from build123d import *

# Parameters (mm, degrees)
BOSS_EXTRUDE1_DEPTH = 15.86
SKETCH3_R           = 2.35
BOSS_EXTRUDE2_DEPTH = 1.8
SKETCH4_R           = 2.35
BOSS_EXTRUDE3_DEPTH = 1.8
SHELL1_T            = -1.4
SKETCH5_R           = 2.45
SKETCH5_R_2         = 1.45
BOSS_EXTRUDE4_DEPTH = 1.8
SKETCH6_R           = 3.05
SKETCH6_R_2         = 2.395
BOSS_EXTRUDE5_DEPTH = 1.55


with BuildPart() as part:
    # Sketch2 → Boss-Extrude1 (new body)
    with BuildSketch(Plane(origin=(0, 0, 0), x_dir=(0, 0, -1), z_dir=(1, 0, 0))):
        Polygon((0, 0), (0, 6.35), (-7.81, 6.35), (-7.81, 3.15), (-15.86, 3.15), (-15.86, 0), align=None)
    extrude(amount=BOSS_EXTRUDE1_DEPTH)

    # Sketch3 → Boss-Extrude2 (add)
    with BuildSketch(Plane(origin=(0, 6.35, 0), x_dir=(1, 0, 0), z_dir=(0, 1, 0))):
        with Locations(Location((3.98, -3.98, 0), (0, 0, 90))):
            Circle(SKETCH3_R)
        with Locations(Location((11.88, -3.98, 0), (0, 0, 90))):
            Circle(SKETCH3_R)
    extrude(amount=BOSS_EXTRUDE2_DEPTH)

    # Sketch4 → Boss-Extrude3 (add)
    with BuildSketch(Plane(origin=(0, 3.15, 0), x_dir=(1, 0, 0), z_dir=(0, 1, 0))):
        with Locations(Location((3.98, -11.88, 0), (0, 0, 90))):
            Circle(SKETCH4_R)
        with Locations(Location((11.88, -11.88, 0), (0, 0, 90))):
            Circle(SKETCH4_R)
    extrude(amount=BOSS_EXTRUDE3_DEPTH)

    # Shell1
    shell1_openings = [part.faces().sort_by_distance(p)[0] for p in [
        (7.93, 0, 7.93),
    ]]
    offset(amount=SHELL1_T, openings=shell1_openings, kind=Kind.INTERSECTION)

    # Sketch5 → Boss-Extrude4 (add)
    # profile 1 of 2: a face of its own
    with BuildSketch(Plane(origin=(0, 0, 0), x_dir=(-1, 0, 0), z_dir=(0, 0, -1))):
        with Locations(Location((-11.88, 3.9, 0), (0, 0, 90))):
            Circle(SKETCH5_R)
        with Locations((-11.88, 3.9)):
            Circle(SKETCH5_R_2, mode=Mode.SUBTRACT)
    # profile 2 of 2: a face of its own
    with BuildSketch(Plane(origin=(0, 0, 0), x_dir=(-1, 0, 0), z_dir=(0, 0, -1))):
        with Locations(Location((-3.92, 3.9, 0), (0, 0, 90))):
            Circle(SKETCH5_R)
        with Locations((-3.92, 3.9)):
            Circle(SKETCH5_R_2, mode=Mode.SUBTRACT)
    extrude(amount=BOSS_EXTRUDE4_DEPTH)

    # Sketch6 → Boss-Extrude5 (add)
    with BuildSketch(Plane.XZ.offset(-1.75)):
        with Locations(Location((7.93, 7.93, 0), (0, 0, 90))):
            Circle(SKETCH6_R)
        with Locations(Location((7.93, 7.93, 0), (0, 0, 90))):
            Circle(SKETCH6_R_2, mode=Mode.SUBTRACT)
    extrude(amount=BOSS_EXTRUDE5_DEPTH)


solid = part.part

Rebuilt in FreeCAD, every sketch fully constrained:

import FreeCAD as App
import Part
import Sketcher
Q = App.Units.Quantity


def faces_at(feature, points):
    """Names of the faces that lie closest to the given points."""
    faces = feature.Shape.Faces
    near = lambda p: min(range(len(faces)), key=lambda i: faces[i].distToShape(Part.Vertex(*p))[0])
    return sorted({f"Face{near(p) + 1}" for p in points})


def add_polygon(sketch, points):
    """Adds a closed chain of lines whose ends are joined by coincident constraints."""
    first, n = sketch.GeometryCount, len(points)
    for a, b in zip(points, points[1:] + points[:1]):
        sketch.addGeometry(Part.LineSegment(App.Vector(*a, 0), App.Vector(*b, 0)), False)
    for i in range(n):
        sketch.addConstraint(Sketcher.Constraint("Coincident", first + i, 2, first + (i + 1) % n, 1))

doc = App.newDocument("Part")
body = doc.addObject("PartDesign::Body", "Body")

sketch1 = doc.addObject("Sketcher::SketchObject", "Sketch")
body.addObject(sketch1)
sketch1.AttachmentSupport = (doc.YZ_Plane, [""])
sketch1.MapMode = "FlatFace"
add_polygon(sketch1, [(0, 0), (6.35, 0), (6.35, 7.81), (3.15, 7.81), (3.15, 15.86), (0, 15.86)])
sketch1.addConstraint([
    Sketcher.Constraint("Horizontal", 0),
    Sketcher.Constraint("Vertical", 1),
    Sketcher.Constraint("Horizontal", 2),
    Sketcher.Constraint("Vertical", 3),
    Sketcher.Constraint("Horizontal", 4),
    Sketcher.Constraint("Vertical", 5),
    Sketcher.Constraint("Coincident", 5, 2, -1, 1),
    Sketcher.Constraint("DistanceX", 2, 2, 2, 1, Q("3.2 mm")),
    Sketcher.Constraint("DistanceX", 0, 1, 0, 2, Q("6.35 mm")),
    Sketcher.Constraint("DistanceY", 1, 1, 1, 2, Q("7.81 mm")),
    Sketcher.Constraint("DistanceY", 3, 1, 3, 2, Q("8.05 mm")),
])
pad1 = doc.addObject("PartDesign::Pad", "Pad")
body.addObject(pad1)
pad1.Profile = sketch1
pad1.Length = 15.86

sketch2 = doc.addObject("Sketcher::SketchObject", "Sketch001")
body.addObject(sketch2)
sketch2.AttachmentSupport = (doc.XZ_Plane, [""])
sketch2.MapMode = "FlatFace"
sketch2.AttachmentOffset = App.Placement(App.Vector(0, 0, -6.35), App.Rotation())
sketch2.addGeometry([
    Part.Circle(App.Vector(3.98, 3.98, 0), App.Vector(0, 0, 1), 2.35),
    Part.Circle(App.Vector(11.88, 3.98, 0), App.Vector(0, 0, 1), 2.35),
], False)
sketch2.addConstraint([
    Sketcher.Constraint("Equal", 0, 1),
    Sketcher.Constraint("Horizontal", 0, 3, 1, 3),
    Sketcher.Constraint("Diameter", 0, Q("4.7 mm")),
    Sketcher.Constraint("DistanceX", 0, 3, 1, 3, Q("7.9 mm")),
    Sketcher.Constraint("DistanceX", -1, 1, 0, 3, Q("3.98 mm")),
    Sketcher.Constraint("DistanceY", -1, 1, 0, 3, Q("3.98 mm")),
])
pad2 = doc.addObject("PartDesign::Pad", "Pad001")
body.addObject(pad2)
pad2.Profile = sketch2
pad2.Length = 1.8
pad2.Reversed = True

sketch3 = doc.addObject("Sketcher::SketchObject", "Sketch002")
body.addObject(sketch3)
sketch3.AttachmentSupport = (doc.XZ_Plane, [""])
sketch3.MapMode = "FlatFace"
sketch3.AttachmentOffset = App.Placement(App.Vector(0, 0, -3.15), App.Rotation())
sketch3.addGeometry([
    Part.Circle(App.Vector(3.98, 11.88, 0), App.Vector(0, 0, 1), 2.35),
    Part.Circle(App.Vector(11.88, 11.88, 0), App.Vector(0, 0, 1), 2.35),
], False)
sketch3.addConstraint([
    Sketcher.Constraint("Equal", 0, 1),
    Sketcher.Constraint("Horizontal", 0, 3, 1, 3),
    Sketcher.Constraint("Diameter", 0, Q("4.7 mm")),
    Sketcher.Constraint("DistanceX", 0, 3, 1, 3, Q("7.9 mm")),
    Sketcher.Constraint("DistanceX", -1, 1, 0, 3, Q("3.98 mm")),
    Sketcher.Constraint("DistanceY", -1, 1, 0, 3, Q("11.88 mm")),
])
pad3 = doc.addObject("PartDesign::Pad", "Pad002")
body.addObject(pad3)
pad3.Profile = sketch3
pad3.Length = 1.8
pad3.Reversed = True
doc.recompute()

thickness = doc.addObject("PartDesign::Thickness", "Thickness")
body.addObject(thickness)
thickness.Base = (pad3, faces_at(pad3, [(7.93, 0, 7.93)]))
thickness.Value = 1.4
thickness.Reversed = True
thickness.Join = "Intersection"

sketch4 = doc.addObject("Sketcher::SketchObject", "Sketch003")
body.addObject(sketch4)
sketch4.AttachmentSupport = (doc.XY_Plane, [""])
sketch4.MapMode = "FlatFace"
sketch4.addGeometry([
    Part.Circle(App.Vector(11.88, 3.9, 0), App.Vector(0, 0, 1), 2.45),
    Part.Circle(App.Vector(11.88, 3.9, 0), App.Vector(0, 0, 1), 1.45),
    Part.Circle(App.Vector(3.92, 3.9, 0), App.Vector(0, 0, 1), 2.45),
    Part.Circle(App.Vector(3.92, 3.9, 0), App.Vector(0, 0, 1), 1.45),
], False)
sketch4.addConstraint([
    Sketcher.Constraint("Coincident", 1, 3, 0, 3),
    Sketcher.Constraint("Coincident", 3, 3, 2, 3),
    Sketcher.Constraint("Equal", 0, 2),
    Sketcher.Constraint("Equal", 1, 3),
    Sketcher.Constraint("Horizontal", 1, 3, 2, 3),
    Sketcher.Constraint("Diameter", 0, Q("4.9 mm")),
    Sketcher.Constraint("Diameter", 1, Q("2.9 mm")),
    Sketcher.Constraint("DistanceY", -1, 1, 0, 3, Q("3.9 mm")),
    Sketcher.Constraint("DistanceX", -1, 1, 0, 3, Q("11.88 mm")),
    Sketcher.Constraint("DistanceX", -1, 1, 2, 3, Q("3.92 mm")),
])
pad4 = doc.addObject("PartDesign::Pad", "Pad003")
body.addObject(pad4)
pad4.Profile = sketch4
pad4.Length = 1.8
pad4.Reversed = True

sketch5 = doc.addObject("Sketcher::SketchObject", "Sketch004")
body.addObject(sketch5)
sketch5.AttachmentSupport = (doc.XZ_Plane, [""])
sketch5.MapMode = "FlatFace"
sketch5.AttachmentOffset = App.Placement(App.Vector(0, 0, -1.75), App.Rotation())
sketch5.addGeometry([
    Part.Circle(App.Vector(7.93, 7.93, 0), App.Vector(0, 0, 1), 3.05),
    Part.Circle(App.Vector(7.93, 7.93, 0), App.Vector(0, 0, 1), 2.395),
], False)
sketch5.addConstraint([
    Sketcher.Constraint("Coincident", 1, 3, 0, 3),
    Sketcher.Constraint("Diameter", 0, Q("6.1 mm")),
    Sketcher.Constraint("Diameter", 1, Q("4.79 mm")),
    Sketcher.Constraint("DistanceX", -1, 1, 0, 3, Q("7.93 mm")),
    Sketcher.Constraint("DistanceY", -1, 1, 0, 3, Q("7.93 mm")),
])
pad5 = doc.addObject("PartDesign::Pad", "Pad004")
body.addObject(pad5)
pad5.Profile = sketch5
pad5.Length = 1.55

doc.recompute()
